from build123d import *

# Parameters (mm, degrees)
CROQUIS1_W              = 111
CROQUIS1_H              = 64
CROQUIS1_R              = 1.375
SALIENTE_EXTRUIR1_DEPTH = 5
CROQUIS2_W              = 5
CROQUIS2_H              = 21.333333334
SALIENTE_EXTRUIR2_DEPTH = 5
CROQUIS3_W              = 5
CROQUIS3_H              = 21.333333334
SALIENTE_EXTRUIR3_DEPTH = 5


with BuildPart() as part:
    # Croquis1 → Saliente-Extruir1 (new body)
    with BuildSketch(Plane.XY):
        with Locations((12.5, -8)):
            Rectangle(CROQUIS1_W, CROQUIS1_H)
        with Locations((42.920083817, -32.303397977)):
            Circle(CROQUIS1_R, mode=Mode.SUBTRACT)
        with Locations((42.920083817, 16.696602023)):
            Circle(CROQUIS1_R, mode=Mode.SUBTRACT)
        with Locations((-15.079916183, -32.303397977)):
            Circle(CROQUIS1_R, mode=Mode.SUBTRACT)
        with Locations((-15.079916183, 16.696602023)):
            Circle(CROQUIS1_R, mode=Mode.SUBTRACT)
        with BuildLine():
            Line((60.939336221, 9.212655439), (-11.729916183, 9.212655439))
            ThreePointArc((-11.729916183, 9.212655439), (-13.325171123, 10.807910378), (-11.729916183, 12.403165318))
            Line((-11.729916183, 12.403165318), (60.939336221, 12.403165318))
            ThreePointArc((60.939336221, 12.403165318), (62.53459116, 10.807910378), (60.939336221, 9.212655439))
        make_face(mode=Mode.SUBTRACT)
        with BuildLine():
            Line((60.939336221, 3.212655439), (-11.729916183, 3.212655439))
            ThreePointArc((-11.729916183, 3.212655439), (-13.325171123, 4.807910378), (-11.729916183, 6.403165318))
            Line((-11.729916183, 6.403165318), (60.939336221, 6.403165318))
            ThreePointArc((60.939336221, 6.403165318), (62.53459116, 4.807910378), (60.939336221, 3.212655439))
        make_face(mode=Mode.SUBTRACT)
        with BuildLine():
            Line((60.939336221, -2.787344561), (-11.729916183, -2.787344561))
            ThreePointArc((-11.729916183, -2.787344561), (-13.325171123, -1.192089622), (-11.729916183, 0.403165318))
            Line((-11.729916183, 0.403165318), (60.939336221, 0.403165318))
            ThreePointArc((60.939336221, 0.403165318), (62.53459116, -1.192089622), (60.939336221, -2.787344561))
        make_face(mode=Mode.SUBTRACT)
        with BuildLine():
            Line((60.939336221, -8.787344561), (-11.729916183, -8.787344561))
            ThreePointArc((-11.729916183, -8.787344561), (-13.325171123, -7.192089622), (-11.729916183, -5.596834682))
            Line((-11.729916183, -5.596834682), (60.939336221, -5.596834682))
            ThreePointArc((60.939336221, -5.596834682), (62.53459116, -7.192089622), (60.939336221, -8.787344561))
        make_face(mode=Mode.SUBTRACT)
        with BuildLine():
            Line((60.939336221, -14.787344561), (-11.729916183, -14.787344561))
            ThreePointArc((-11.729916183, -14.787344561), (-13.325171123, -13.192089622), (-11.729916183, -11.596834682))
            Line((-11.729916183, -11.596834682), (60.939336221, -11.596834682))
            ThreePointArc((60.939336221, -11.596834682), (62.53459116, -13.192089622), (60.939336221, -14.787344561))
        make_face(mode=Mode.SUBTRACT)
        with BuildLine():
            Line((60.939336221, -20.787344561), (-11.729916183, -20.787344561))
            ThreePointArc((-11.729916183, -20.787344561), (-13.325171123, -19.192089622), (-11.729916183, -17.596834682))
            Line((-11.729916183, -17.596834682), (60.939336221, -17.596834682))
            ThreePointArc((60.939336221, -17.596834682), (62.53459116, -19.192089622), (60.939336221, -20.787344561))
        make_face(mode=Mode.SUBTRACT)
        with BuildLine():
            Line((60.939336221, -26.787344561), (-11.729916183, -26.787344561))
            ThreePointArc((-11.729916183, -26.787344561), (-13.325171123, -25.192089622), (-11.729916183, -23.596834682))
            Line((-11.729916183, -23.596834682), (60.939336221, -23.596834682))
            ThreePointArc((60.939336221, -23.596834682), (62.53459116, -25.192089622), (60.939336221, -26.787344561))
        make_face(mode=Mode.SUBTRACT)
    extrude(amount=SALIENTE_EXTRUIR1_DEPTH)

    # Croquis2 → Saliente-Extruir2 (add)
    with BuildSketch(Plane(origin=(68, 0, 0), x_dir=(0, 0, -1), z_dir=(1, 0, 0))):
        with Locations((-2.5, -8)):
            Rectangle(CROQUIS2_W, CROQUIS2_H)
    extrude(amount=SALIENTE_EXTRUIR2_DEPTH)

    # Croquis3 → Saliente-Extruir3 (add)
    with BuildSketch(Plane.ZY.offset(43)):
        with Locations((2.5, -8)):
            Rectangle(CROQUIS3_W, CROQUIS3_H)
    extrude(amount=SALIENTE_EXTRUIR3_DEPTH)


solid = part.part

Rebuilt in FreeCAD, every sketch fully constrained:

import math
import FreeCAD as App
import Part
import Sketcher
from FreeCAD import Vector


def add_polygon(sketch, points):
    """Adds a closed chain of lines whose ends are joined by coincident constraints."""
    first, n = sketch.GeometryCount, len(points)
    for a, b in zip(points, points[1:] + points[:1]):
        sketch.addGeometry(Part.LineSegment(App.Vector(*a, 0), App.Vector(*b, 0)), False)
    for i in range(n):
        sketch.addConstraint(Sketcher.Constraint("Coincident", first + i, 2, first + (i + 1) % n, 1))

doc = App.newDocument("Part")
body = doc.addObject("PartDesign::Body", "Body")

# Sketch on XY plane
sketch1 = doc.addObject("Sketcher::SketchObject", "Sketch")
body.addObject(sketch1)
sketch1.AttachmentSupport = (doc.XY_Plane, [""])
sketch1.MapMode = "FlatFace"
add_polygon(sketch1, [(-43, 24), (-43, -40), (68, -40), (68, 24)])  # lines 0-3
sketch1.addGeometry(Part.Circle(Vector(-15.1, -32.3, 0), Vector(0, 0, 1), 1.4), False)  # 4
sketch1.addGeometry(Part.ArcOfCircle(Part.Circle(Vector(60.9, -25.2, 0), Vector(0, 0, 1), 1.6), math.radians(-90), math.radians(90)), False)  # 5
sketch1.addGeometry(Part.LineSegment(Vector(60.9, -26.8, 0), Vector(-11.7, -26.8, 0)), False)  # 6
sketch1.addGeometry(Part.ArcOfCircle(Part.Circle(Vector(-11.7, -25.2, 0), Vector(0, 0, 1), 1.6), math.radians(90), math.radians(270)), False)  # 7
sketch1.addGeometry(Part.LineSegment(Vector(-11.7, -23.6, 0), Vector(60.9, -23.6, 0)), False)  # 8
sketch1.addGeometry(Part.Circle(Vector(42.9, -32.3, 0), Vector(0, 0, 1), 1.4), False)  # 9
sketch1.addGeometry(Part.ArcOfCircle(Part.Circle(Vector(60.9, -19.2, 0), Vector(0, 0, 1), 1.6), math.radians(-90), math.radians(90)), False)  # 10
sketch1.addGeometry(Part.LineSegment(Vector(60.9, -20.8, 0), Vector(-11.7, -20.8, 0)), False)  # 11
sketch1.addGeometry(Part.ArcOfCircle(Part.Circle(Vector(-11.7, -19.2, 0), Vector(0, 0, 1), 1.6), math.radians(90), math.radians(270)), False)  # 12
sketch1.addGeometry(Part.LineSegment(Vector(-11.7, -17.6, 0), Vector(60.9, -17.6, 0)), False)  # 13
sketch1.addGeometry(Part.ArcOfCircle(Part.Circle(Vector(60.9, -13.2, 0), Vector(0, 0, 1), 1.6), math.radians(-90), math.radians(90)), False)  # 14
sketch1.addGeometry(Part.LineSegment(Vector(60.9, -14.8, 0), Vector(-11.7, -14.8, 0)), False)  # 15
sketch1.addGeometry(Part.ArcOfCircle(Part.Circle(Vector(-11.7, -13.2, 0), Vector(0, 0, 1), 1.6), math.radians(90), math.radians(270)), False)  # 16
sketch1.addGeometry(Part.LineSegment(Vector(-11.7, -11.6, 0), Vector(60.9, -11.6, 0)), False)  # 17
sketch1.addGeometry(Part.Circle(Vector(-15.1, 16.7, 0), Vector(0, 0, 1), 1.4), False)  # 18
sketch1.addGeometry(Part.ArcOfCircle(Part.Circle(Vector(60.9, -7.2, 0), Vector(0, 0, 1), 1.6), math.radians(-90), math.radians(90)), False)  # 19
sketch1.addGeometry(Part.LineSegment(Vector(60.9, -8.8, 0), Vector(-11.7, -8.8, 0)), False)  # 20
sketch1.addGeometry(Part.ArcOfCircle(Part.Circle(Vector(-11.7, -7.2, 0), Vector(0, 0, 1), 1.6), math.radians(90), math.radians(270)), False)  # 21
sketch1.addGeometry(Part.LineSegment(Vector(-11.7, -5.6, 0), Vector(60.9, -5.6, 0)), False)  # 22
sketch1.addGeometry(Part.ArcOfCircle(Part.Circle(Vector(60.9, -1.2, 0), Vector(0, 0, 1), 1.6), math.radians(-90), math.radians(90)), False)  # 23
sketch1.addGeometry(Part.LineSegment(Vector(60.9, -2.8, 0), Vector(-11.7, -2.8, 0)), False)  # 24
sketch1.addGeometry(Part.ArcOfCircle(Part.Circle(Vector(-11.7, -1.2, 0), Vector(0, 0, 1), 1.6), math.radians(90), math.radians(270)), False)  # 25
sketch1.addGeometry(Part.LineSegment(Vector(-11.7, 0.4, 0), Vector(60.9, 0.4, 0)), False)  # 26
sketch1.addGeometry(Part.ArcOfCircle(Part.Circle(Vector(60.9, 4.8, 0), Vector(0, 0, 1), 1.6), math.radians(-90), math.radians(90)), False)  # 27
sketch1.addGeometry(Part.LineSegment(Vector(60.9, 3.2, 0), Vector(-11.7, 3.2, 0)), False)  # 28
sketch1.addGeometry(Part.ArcOfCircle(Part.Circle(Vector(-11.7, 4.8, 0), Vector(0, 0, 1), 1.6), math.radians(90), math.radians(270)), False)  # 29
sketch1.addGeometry(Part.LineSegment(Vector(-11.7, 6.4, 0), Vector(60.9, 6.4, 0)), False)  # 30
sketch1.addGeometry(Part.ArcOfCircle(Part.Circle(Vector(60.9, 10.8, 0), Vector(0, 0, 1), 1.6), math.radians(-90), math.radians(90)), False)  # 31
sketch1.addGeometry(Part.LineSegment(Vector(60.9, 9.2, 0), Vector(-11.7, 9.2, 0)), False)  # 32
sketch1.addGeometry(Part.ArcOfCircle(Part.Circle(Vector(-11.7, 10.8, 0), Vector(0, 0, 1), 1.6), math.radians(90), math.radians(270)), False)  # 33
sketch1.addGeometry(Part.LineSegment(Vector(-11.7, 12.4, 0), Vector(60.9, 12.4, 0)), False)  # 34
sketch1.addGeometry(Part.Circle(Vector(42.9, 16.7, 0), Vector(0, 0, 1), 1.4), False)  # 35
sketch1.addConstraint(Sketcher.Constraint("Tangent", 5, 1, 6, 1))
sketch1.addConstraint(Sketcher.Constraint("Tangent", 6, 2, 7, 2))
sketch1.addConstraint(Sketcher.Constraint("Tangent", 7, 1, 8, 1))
sketch1.addConstraint(Sketcher.Constraint("Tangent", 8, 2, 5, 2))
sketch1.addConstraint(Sketcher.Constraint("Tangent", 10, 1, 11, 1))
sketch1.addConstraint(Sketcher.Constraint("Tangent", 11, 2, 12, 2))
sketch1.addConstraint(Sketcher.Constraint("Tangent", 12, 1, 13, 1))
sketch1.addConstraint(Sketcher.Constraint("Tangent", 13, 2, 10, 2))
sketch1.addConstraint(Sketcher.Constraint("Tangent", 14, 1, 15, 1))
sketch1.addConstraint(Sketcher.Constraint("Tangent", 15, 2, 16, 2))
sketch1.addConstraint(Sketcher.Constraint("Tangent", 16, 1, 17, 1))
sketch1.addConstraint(Sketcher.Constraint("Tangent", 17, 2, 14, 2))
sketch1.addConstraint(Sketcher.Constraint("Tangent", 19, 1, 20, 1))
sketch1.addConstraint(Sketcher.Constraint("Tangent", 20, 2, 21, 2))
sketch1.addConstraint(Sketcher.Constraint("Tangent", 21, 1, 22, 1))
sketch1.addConstraint(Sketcher.Constraint("Tangent", 22, 2, 19, 2))
sketch1.addConstraint(Sketcher.Constraint("Tangent", 23, 1, 24, 1))
sketch1.addConstraint(Sketcher.Constraint("Tangent", 24, 2, 25, 2))
sketch1.addConstraint(Sketcher.Constraint("Tangent", 25, 1, 26, 1))
sketch1.addConstraint(Sketcher.Constraint("Tangent", 26, 2, 23, 2))
sketch1.addConstraint(Sketcher.Constraint("Tangent", 27, 1, 28, 1))
sketch1.addConstraint(Sketcher.Constraint("Tangent", 28, 2, 29, 2))
sketch1.addConstraint(Sketcher.Constraint("Tangent", 29, 1, 30, 1))
sketch1.addConstraint(Sketcher.Constraint("Tangent", 30, 2, 27, 2))
sketch1.addConstraint(Sketcher.Constraint("Tangent", 31, 1, 32, 1))
sketch1.addConstraint(Sketcher.Constraint("Tangent", 32, 2, 33, 2))
sketch1.addConstraint(Sketcher.Constraint("Tangent", 33, 1, 34, 1))
sketch1.addConstraint(Sketcher.Constraint("Tangent", 34, 2, 31, 2))
sketch1.addConstraint(Sketcher.Constraint("Vertical", 0))
sketch1.addConstraint(Sketcher.Constraint("Horizontal", 1))
sketch1.addConstraint(Sketcher.Constraint("Vertical", 2))
sketch1.addConstraint(Sketcher.Constraint("Horizontal", 3))
sketch1.addConstraint(Sketcher.Constraint("Horizontal", 6))
sketch1.addConstraint(Sketcher.Constraint("Horizontal", 8))
sketch1.addConstraint(Sketcher.Constraint("Horizontal", 11))
sketch1.addConstraint(Sketcher.Constraint("Horizontal", 13))
sketch1.addConstraint(Sketcher.Constraint("Horizontal", 15))
sketch1.addConstraint(Sketcher.Constraint("Horizontal", 17))
sketch1.addConstraint(Sketcher.Constraint("Horizontal", 20))
sketch1.addConstraint(Sketcher.Constraint("Horizontal", 22))
sketch1.addConstraint(Sketcher.Constraint("Horizontal", 24))
sketch1.addConstraint(Sketcher.Constraint("Horizontal", 26))
sketch1.addConstraint(Sketcher.Constraint("Horizontal", 28))
sketch1.addConstraint(Sketcher.Constraint("Horizontal", 30))
sketch1.addConstraint(Sketcher.Constraint("Horizontal", 32))
sketch1.addConstraint(Sketcher.Constraint("Horizontal", 34))
sketch1.addConstraint(Sketcher.Constraint("Equal", 4, 9))
sketch1.addConstraint(Sketcher.Constraint("Equal", 7, 10))
sketch1.addConstraint(Sketcher.Constraint("Equal", 12, 14))
sketch1.addConstraint(Sketcher.Constraint("Equal", 9, 18))
sketch1.addConstraint(Sketcher.Constraint("Equal", 16, 19))
sketch1.addConstraint(Sketcher.Constraint("Equal", 21, 23))
sketch1.addConstraint(Sketcher.Constraint("Equal", 25, 27))
sketch1.addConstraint(Sketcher.Constraint("Equal", 29, 31))
sketch1.addConstraint(Sketcher.Constraint("Equal", 18, 35))
sketch1.addConstraint(Sketcher.Constraint("Horizontal", 4, 3, 9, 3))
sketch1.addConstraint(Sketcher.Constraint("Horizontal", 18, 3, 35, 3))
sketch1.addConstraint(Sketcher.Constraint("Vertical", 5, 3, 10, 3))
sketch1.addConstraint(Sketcher.Constraint("Vertical", 7, 3, 12, 3))
sketch1.addConstraint(Sketcher.Constraint("Vertical", 10, 3, 14, 3))
sketch1.addConstraint(Sketcher.Constraint("Vertical", 12, 3, 16, 3))
sketch1.addConstraint(Sketcher.Constraint("Vertical", 4, 3, 18, 3))
sketch1.addConstraint(Sketcher.Constraint("Vertical", 14, 3, 19, 3))
sketch1.addConstraint(Sketcher.Constraint("Vertical", 16, 3, 21, 3))
sketch1.addConstraint(Sketcher.Constraint("Vertical", 19, 3, 23, 3))
sketch1.addConstraint(Sketcher.Constraint("Vertical", 21, 3, 25, 3))
sketch1.addConstraint(Sketcher.Constraint("Vertical", 23, 3, 27, 3))
sketch1.addConstraint(Sketcher.Constraint("Vertical", 25, 3, 29, 3))
sketch1.addConstraint(Sketcher.Constraint("Vertical", 27, 3, 31, 3))
sketch1.addConstraint(Sketcher.Constraint("Vertical", 29, 3, 33, 3))
sketch1.addConstraint(Sketcher.Constraint("Vertical", 9, 3, 35, 3))
sketch1.addConstraint(Sketcher.Constraint("Diameter", 4, 2.75))
sketch1.addConstraint(Sketcher.Constraint("DistanceX", 1, 1, 1, 2, 111.0))
sketch1.addConstraint(Sketcher.Constraint("DistanceY", 0, 2, 0, 1, 64.0))
sketch1.addConstraint(Sketcher.Constraint("DistanceX", 0, 2, -1, 1, 43.0))
sketch1.addConstraint(Sketcher.Constraint("DistanceY", 0, 2, -1, 1, 40.0))
sketch1.addConstraint(Sketcher.Constraint("DistanceX", 4, 3, 9, 3, 58.0))
sketch1.addConstraint(Sketcher.Constraint("DistanceY", 5, 3, 10, 3, 6.0))
sketch1.addConstraint(Sketcher.Constraint("DistanceY", 10, 3, 14, 3, 6.0))
sketch1.addConstraint(Sketcher.Constraint("DistanceY", 4, 3, 18, 3, 49.0))
sketch1.addConstraint(Sketcher.Constraint("DistanceY", 14, 3, 19, 3, 6.0))
sketch1.addConstraint(Sketcher.Constraint("DistanceY", 19, 3, 23, 3, 6.0))
sketch1.addConstraint(Sketcher.Constraint("DistanceY", 23, 3, 27, 3, 6.0))
sketch1.addConstraint(Sketcher.Constraint("DistanceY", 27, 3, 31, 3, 6.0))
sketch1.addConstraint(Sketcher.Constraint("DistanceX", 4, 3, 7, 3, 3.35))
sketch1.addConstraint(Sketcher.Constraint("Radius", 5, 1.595255))
sketch1.addConstraint(Sketcher.Constraint("DistanceX", 6, 2, 6, 1, 72.669252))
sketch1.addConstraint(Sketcher.Constraint("DistanceY", 5, 3, -1, 1, 25.19209))
sketch1.addConstraint(Sketcher.Constraint("DistanceY", 4, 3, 5, 3, 7.111308))
sketch1.addConstraint(Sketcher.Constraint("DistanceX", 4, 3, -1, 1, 15.079916))
pad1 = doc.addObject("PartDesign::Pad", "Pad")
body.addObject(pad1)
pad1.Profile = sketch1
pad1.Length = 5

# Sketch on YZ plane
sketch2 = doc.addObject("Sketcher::SketchObject", "Sketch001")
body.addObject(sketch2)
sketch2.AttachmentSupport = (doc.YZ_Plane, [""])
sketch2.MapMode = "FlatFace"
sketch2.AttachmentOffset = App.Placement(Vector(0, 0, 68), App.Rotation())
add_polygon(sketch2, [(3, 5), (-19, 5), (-19, 0), (3, 0)])  # lines 0-3
sketch2.addConstraint(Sketcher.Constraint("Horizontal", 0))
sketch2.addConstraint(Sketcher.Constraint("Vertical", 1))
sketch2.addConstraint(Sketcher.Constraint("Horizontal", 2))
sketch2.addConstraint(Sketcher.Constraint("Vertical", 3))
sketch2.addConstraint(Sketcher.Constraint("PointOnObject", 1, 2, -1))
sketch2.addConstraint(Sketcher.Constraint("DistanceY", 1, 2, 1, 1, 5.0))
sketch2.addConstraint(Sketcher.Constraint("DistanceX", 0, 2, 0, 1, 21.333333))
sketch2.addConstraint(Sketcher.Constraint("DistanceX", 0, 2, -1, 1, 18.666667))
pad2 = doc.addObject("PartDesign::Pad", "Pad001")
body.addObject(pad2)
pad2.Profile = sketch2
pad2.Length = 5

# Sketch on YZ plane
sketch3 = doc.addObject("Sketcher::SketchObject", "Sketch002")
body.addObject(sketch3)
sketch3.AttachmentSupport = (doc.YZ_Plane, [""])
sketch3.MapMode = "FlatFace"
sketch3.AttachmentOffset = App.Placement(Vector(0, 0, -43), App.Rotation())
add_polygon(sketch3, [(3, 0), (-19, 0), (-19, 5), (3, 5)])  # lines 0-3
sketch3.addConstraint(Sketcher.Constraint("Horizontal", 0))
sketch3.addConstraint(Sketcher.Constraint("Vertical", 1))
sketch3.addConstraint(Sketcher.Constraint("Horizontal", 2))
sketch3.addConstraint(Sketcher.Constraint("Vertical", 3))
sketch3.addConstraint(Sketcher.Constraint("PointOnObject", 0, 2, -1))
sketch3.addConstraint(Sketcher.Constraint("DistanceY", 1, 1, 1, 2, 5.0))
sketch3.addConstraint(Sketcher.Constraint("DistanceX", 0, 2, 0, 1, 21.333333))
sketch3.addConstraint(Sketcher.Constraint("DistanceX", 0, 2, -1, 1, 18.666667))
pad3 = doc.addObject("PartDesign::Pad", "Pad002")
body.addObject(pad3)
pad3.Profile = sketch3
pad3.Length = 5
pad3.Reversed = True

doc.recompute()
